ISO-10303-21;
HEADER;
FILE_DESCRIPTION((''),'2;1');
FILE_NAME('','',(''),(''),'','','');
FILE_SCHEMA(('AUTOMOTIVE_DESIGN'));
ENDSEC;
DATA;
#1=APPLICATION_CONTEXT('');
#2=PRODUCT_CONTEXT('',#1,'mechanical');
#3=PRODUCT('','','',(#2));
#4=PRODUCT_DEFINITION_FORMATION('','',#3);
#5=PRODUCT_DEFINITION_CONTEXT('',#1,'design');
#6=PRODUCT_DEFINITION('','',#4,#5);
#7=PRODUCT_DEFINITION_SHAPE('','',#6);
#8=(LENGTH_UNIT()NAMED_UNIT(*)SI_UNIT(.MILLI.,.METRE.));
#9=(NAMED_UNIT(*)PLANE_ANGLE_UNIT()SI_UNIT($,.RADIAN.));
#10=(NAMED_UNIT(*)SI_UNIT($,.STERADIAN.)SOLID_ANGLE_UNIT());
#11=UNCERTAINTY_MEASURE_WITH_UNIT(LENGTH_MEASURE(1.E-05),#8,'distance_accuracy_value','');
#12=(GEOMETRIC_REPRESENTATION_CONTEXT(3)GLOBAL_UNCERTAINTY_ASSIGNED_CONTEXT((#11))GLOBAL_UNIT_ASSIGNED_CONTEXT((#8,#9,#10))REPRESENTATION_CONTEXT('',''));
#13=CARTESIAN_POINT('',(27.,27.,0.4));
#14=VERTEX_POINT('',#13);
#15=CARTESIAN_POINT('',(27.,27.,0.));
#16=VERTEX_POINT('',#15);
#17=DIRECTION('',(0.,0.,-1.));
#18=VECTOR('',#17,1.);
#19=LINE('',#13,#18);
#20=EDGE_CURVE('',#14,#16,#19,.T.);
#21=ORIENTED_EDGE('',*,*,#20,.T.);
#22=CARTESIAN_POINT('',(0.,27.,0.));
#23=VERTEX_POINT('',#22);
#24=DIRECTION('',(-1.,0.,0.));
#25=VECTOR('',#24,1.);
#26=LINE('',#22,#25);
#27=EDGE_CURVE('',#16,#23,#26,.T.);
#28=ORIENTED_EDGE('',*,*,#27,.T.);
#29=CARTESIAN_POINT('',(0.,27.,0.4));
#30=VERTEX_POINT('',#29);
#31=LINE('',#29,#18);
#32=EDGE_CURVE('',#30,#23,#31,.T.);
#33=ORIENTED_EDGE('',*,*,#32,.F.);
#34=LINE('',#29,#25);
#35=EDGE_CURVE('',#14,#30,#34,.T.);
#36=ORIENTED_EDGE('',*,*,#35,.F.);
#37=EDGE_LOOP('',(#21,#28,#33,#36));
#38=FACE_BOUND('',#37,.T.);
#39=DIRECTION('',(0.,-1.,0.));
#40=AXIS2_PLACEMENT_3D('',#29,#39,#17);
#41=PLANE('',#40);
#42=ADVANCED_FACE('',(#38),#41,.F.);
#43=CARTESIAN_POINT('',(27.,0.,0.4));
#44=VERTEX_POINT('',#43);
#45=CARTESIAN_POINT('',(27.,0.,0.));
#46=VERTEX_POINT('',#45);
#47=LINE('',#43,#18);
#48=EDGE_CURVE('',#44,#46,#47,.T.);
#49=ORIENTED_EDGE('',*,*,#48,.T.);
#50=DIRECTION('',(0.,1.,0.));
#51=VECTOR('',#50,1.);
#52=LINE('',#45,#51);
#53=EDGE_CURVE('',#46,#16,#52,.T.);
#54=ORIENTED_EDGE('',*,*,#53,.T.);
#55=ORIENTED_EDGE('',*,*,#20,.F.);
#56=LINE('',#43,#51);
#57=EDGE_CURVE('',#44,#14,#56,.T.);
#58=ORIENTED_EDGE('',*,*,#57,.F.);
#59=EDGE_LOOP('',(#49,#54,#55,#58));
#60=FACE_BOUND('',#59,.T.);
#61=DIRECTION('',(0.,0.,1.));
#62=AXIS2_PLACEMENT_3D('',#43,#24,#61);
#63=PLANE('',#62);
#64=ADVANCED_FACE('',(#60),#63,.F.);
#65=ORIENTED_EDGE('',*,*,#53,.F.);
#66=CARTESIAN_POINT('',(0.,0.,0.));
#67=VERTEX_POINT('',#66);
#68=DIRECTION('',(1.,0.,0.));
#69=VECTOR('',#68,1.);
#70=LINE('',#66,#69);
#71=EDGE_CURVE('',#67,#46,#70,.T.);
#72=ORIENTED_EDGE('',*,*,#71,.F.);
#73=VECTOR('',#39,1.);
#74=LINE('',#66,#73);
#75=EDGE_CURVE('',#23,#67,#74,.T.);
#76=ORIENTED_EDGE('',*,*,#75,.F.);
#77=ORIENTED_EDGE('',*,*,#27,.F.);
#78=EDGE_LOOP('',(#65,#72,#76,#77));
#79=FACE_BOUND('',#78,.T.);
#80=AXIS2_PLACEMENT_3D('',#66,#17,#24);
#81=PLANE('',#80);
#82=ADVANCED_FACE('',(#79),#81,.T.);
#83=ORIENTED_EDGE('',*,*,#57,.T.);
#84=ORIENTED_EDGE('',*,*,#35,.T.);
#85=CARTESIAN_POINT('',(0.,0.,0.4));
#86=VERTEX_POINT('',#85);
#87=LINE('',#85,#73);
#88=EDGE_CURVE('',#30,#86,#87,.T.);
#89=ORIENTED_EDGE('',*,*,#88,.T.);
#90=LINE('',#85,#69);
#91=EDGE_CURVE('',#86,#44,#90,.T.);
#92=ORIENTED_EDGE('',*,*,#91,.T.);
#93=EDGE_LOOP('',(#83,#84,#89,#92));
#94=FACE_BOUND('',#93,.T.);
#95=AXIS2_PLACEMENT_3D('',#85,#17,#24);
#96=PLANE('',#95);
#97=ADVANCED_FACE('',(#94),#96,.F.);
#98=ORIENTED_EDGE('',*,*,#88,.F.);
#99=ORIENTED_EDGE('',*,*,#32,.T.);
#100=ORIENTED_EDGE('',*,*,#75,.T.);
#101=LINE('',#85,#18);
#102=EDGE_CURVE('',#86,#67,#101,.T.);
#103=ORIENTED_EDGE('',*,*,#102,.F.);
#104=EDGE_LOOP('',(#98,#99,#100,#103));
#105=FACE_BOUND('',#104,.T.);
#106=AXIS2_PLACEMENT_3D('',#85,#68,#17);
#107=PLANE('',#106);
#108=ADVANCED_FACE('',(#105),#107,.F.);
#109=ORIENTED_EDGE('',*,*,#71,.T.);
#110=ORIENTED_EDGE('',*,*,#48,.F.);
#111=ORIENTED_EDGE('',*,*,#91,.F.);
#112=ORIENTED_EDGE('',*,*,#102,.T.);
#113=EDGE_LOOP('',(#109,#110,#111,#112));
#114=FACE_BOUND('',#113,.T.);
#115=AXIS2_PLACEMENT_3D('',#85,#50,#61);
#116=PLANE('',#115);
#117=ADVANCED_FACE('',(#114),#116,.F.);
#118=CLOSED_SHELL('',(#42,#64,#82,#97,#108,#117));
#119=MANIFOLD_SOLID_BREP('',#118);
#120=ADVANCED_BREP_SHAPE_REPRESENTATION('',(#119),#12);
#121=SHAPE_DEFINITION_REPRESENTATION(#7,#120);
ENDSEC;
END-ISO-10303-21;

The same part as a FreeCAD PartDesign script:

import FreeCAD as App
import Part
import Sketcher
from FreeCAD import Vector


def add_polygon(sketch, points):
    """Adds a closed chain of lines whose ends are joined by coincident constraints."""
    first, n = sketch.GeometryCount, len(points)
    for a, b in zip(points, points[1:] + points[:1]):
        sketch.addGeometry(Part.LineSegment(App.Vector(*a, 0), App.Vector(*b, 0)), False)
    for i in range(n):
        sketch.addConstraint(Sketcher.Constraint("Coincident", first + i, 2, first + (i + 1) % n, 1))

doc = App.newDocument("Part")
body = doc.addObject("PartDesign::Body", "Body")

# Sketch on XY plane
sketch1 = body.newObject("Sketcher::SketchObject", "Sketch")
sketch1.AttachmentSupport = (doc.getObject("XY_Plane"), [""])
sketch1.MapMode = "FlatFace"
add_polygon(sketch1, [(0, 27), (0, 0), (27, 0), (27, 27)])  # lines 0-3
sketch1.addConstraint(Sketcher.Constraint("Vertical", 0))
sketch1.addConstraint(Sketcher.Constraint("Horizontal", 1))
sketch1.addConstraint(Sketcher.Constraint("Vertical", 2))
sketch1.addConstraint(Sketcher.Constraint("Horizontal", 3))
sketch1.addConstraint(Sketcher.Constraint("Coincident", 0, 2, -1, 1))
sketch1.addConstraint(Sketcher.Constraint("Equal", 3, 0))
sketch1.addConstraint(Sketcher.Constraint("DistanceX", 1, 1, 1, 2, 27.0))
pad1 = body.newObject("PartDesign::Pad", "Pad")
pad1.Profile = sketch1
pad1.Length = 0.4

doc.recompute()
